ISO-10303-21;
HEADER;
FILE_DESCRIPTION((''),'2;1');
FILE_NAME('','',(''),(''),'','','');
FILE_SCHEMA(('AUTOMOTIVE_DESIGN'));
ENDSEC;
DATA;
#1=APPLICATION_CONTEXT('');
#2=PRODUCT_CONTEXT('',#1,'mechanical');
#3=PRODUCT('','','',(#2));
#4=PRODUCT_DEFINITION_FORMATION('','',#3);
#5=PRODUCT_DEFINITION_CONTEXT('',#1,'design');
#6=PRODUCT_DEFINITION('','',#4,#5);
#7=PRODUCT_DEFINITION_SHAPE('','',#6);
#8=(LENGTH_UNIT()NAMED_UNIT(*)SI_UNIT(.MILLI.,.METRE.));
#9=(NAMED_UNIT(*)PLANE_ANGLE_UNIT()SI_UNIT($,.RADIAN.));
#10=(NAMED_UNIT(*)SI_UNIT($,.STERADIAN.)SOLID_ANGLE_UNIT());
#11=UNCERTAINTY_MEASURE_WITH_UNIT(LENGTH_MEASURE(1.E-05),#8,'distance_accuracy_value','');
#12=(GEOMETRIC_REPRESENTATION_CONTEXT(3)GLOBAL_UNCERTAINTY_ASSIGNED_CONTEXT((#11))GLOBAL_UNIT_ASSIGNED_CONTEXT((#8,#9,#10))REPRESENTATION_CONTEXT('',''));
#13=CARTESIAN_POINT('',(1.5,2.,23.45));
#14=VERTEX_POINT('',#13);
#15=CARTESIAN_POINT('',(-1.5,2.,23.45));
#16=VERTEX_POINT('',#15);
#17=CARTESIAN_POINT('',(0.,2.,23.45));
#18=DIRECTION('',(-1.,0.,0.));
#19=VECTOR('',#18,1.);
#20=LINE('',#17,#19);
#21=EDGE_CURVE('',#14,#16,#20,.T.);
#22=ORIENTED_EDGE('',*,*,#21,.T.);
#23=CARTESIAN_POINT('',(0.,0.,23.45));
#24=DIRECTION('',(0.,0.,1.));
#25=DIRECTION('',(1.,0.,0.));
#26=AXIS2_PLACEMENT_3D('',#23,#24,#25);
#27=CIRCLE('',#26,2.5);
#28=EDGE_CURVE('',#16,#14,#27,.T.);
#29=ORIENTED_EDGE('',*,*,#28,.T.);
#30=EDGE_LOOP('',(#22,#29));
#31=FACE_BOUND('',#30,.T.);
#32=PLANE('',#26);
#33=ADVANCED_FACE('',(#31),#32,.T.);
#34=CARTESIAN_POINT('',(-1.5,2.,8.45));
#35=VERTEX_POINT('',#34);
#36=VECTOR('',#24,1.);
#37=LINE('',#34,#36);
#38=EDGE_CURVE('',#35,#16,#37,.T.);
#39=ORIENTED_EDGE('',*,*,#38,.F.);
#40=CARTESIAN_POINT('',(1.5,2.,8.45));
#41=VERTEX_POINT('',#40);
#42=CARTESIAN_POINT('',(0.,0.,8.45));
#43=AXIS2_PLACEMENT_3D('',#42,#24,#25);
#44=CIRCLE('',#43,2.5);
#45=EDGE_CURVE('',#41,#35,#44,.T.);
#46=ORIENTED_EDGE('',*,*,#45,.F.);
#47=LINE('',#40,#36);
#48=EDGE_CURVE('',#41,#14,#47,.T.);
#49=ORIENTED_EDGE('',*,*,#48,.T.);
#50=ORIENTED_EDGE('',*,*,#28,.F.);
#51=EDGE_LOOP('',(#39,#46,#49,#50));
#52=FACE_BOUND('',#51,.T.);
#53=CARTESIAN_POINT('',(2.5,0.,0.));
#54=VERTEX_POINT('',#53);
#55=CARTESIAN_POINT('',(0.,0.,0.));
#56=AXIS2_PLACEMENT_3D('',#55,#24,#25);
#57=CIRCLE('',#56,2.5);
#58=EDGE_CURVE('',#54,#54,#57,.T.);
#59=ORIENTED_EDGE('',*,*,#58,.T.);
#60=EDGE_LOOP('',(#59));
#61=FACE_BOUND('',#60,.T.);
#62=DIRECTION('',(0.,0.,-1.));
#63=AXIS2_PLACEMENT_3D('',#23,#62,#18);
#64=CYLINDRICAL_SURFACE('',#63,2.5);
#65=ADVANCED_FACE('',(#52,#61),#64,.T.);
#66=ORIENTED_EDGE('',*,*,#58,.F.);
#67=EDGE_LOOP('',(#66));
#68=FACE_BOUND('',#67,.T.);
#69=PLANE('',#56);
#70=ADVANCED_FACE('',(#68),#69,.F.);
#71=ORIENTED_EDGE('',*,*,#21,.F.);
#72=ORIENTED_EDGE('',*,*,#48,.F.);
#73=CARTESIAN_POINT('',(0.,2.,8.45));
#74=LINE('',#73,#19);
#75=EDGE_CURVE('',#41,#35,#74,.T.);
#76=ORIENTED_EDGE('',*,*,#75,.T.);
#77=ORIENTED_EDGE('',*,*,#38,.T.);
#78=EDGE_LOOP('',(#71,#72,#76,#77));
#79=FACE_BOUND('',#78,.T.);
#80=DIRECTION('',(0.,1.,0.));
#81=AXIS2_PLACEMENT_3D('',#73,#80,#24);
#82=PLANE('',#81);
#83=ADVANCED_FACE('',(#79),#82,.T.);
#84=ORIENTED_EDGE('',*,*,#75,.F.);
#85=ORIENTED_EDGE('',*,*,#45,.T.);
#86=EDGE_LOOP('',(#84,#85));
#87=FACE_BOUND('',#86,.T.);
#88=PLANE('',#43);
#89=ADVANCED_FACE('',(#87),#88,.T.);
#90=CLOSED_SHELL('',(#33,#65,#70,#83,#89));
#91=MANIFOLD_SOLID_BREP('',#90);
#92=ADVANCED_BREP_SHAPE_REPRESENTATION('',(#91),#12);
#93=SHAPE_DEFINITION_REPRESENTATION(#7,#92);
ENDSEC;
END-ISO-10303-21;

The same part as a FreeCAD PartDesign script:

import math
import FreeCAD as App
import Part
import Sketcher
from FreeCAD import Vector

doc = App.newDocument("Part")
body = doc.addObject("PartDesign::Body", "Body")

sketch1 = body.newObject("Sketcher::SketchObject", "Sketch")
sketch1.AttachmentSupport = (doc.getObject("XY_Plane"), [""])
sketch1.MapMode = "FlatFace"
sketch1.addGeometry(Part.Circle(Vector(0, 0, 0), Vector(0, 0, 1), 2.5), False)
sketch1.addConstraint(Sketcher.Constraint("Coincident", 0, 3, -1, 1))
sketch1.addConstraint(Sketcher.Constraint("Diameter", 0, 5.0))
pad1 = body.newObject("PartDesign::Pad", "Pad")
pad1.Profile = sketch1
pad1.Length = 23.45

sketch2 = body.newObject("Sketcher::SketchObject", "Sketch001")
sketch2.AttachmentSupport = (doc.getObject("XY_Plane"), [""])
sketch2.MapMode = "FlatFace"
sketch2.AttachmentOffset = App.Placement(Vector(0, 0, 8.45), App.Rotation())
sketch2.addGeometry(Part.LineSegment(Vector(-1.5, 2, 0), Vector(1.5, 2, 0)), False)
sketch2.addGeometry(Part.ArcOfCircle(Part.Circle(Vector(0, 0, 0), Vector(0, 0, 1), 2.5), math.radians(53.130102), math.radians(126.869898)), False)
sketch2.addConstraint(Sketcher.Constraint("Coincident", 0, 1, 1, 2))
sketch2.addConstraint(Sketcher.Constraint("Coincident", 1, 1, 0, 2))
sketch2.addConstraint(Sketcher.Constraint("Horizontal", 0))
sketch2.addConstraint(Sketcher.Constraint("Coincident", 1, 3, -1, 1))
sketch2.addConstraint(Sketcher.Constraint("Radius", 1, 2.5))
sketch2.addConstraint(Sketcher.Constraint("DistanceX", 0, 1, 0, 2, 3.0))
pocket1 = body.newObject("PartDesign::Pocket", "Pocket")
pocket1.Profile = sketch2
pocket1.Length = 15
pocket1.Reversed = True

doc.recompute()
